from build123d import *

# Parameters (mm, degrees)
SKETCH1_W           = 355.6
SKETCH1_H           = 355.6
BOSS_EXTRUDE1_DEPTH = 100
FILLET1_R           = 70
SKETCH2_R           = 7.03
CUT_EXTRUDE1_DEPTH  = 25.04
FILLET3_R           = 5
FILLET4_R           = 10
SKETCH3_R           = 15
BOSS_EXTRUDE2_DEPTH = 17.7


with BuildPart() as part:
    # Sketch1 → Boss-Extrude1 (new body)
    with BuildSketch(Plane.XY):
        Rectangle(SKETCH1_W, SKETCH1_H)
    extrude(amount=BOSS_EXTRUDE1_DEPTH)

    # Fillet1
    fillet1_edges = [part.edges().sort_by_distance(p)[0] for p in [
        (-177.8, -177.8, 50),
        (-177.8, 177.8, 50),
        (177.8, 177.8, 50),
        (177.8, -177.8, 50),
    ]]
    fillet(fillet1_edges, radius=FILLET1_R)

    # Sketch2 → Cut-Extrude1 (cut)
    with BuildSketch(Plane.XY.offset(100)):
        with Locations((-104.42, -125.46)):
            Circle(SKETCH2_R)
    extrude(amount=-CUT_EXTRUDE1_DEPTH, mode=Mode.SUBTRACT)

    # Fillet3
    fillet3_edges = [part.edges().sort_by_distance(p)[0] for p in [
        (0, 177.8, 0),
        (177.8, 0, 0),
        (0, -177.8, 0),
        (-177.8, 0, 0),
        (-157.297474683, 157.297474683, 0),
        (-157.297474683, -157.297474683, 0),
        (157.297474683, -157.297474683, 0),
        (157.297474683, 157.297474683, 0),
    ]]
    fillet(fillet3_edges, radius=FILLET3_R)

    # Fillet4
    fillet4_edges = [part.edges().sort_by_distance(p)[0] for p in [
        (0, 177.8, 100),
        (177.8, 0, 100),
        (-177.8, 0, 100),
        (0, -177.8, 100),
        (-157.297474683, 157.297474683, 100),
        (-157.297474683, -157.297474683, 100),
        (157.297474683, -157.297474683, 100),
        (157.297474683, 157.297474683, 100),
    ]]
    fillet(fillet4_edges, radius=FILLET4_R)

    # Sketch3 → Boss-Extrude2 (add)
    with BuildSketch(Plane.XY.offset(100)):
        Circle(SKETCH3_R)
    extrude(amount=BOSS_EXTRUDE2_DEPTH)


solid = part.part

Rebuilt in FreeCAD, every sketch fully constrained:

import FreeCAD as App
import Part
import Sketcher
Q = App.Units.Quantity


def edges_at(feature, points):
    """Names of the edges that pass closest to the given points."""
    edges = feature.Shape.Edges
    near = lambda p: min(range(len(edges)), key=lambda i: edges[i].distToShape(Part.Vertex(*p))[0])
    return sorted({f"Edge{near(p) + 1}" for p in points})

doc = App.newDocument("Part")
body = doc.addObject("PartDesign::Body", "Body")

# Sketch on XY plane
sketch1 = body.newObject("Sketcher::SketchObject", "Sketch")
sketch1.AttachmentSupport = (doc.getObject("XY_Plane"), [""])
sketch1.MapMode = "FlatFace"
sketch1.addGeometry([
    Part.LineSegment(App.Vector(-177.8, 177.8, 0), App.Vector(-177.8, -177.8, 0)),
    Part.LineSegment(App.Vector(-177.8, -177.8, 0), App.Vector(177.8, -177.8, 0)),
    Part.LineSegment(App.Vector(177.8, -177.8, 0), App.Vector(177.8, 177.8, 0)),
    Part.LineSegment(App.Vector(177.8, 177.8, 0), App.Vector(-177.8, 177.8, 0)),
], False)
sketch1.addConstraint([
    Sketcher.Constraint("Coincident", 0, 2, 1, 1),
    Sketcher.Constraint("Coincident", 1, 2, 2, 1),
    Sketcher.Constraint("Coincident", 2, 2, 3, 1),
    Sketcher.Constraint("Coincident", 3, 2, 0, 1),
    Sketcher.Constraint("Vertical", 0),
    Sketcher.Constraint("Horizontal", 1),
    Sketcher.Constraint("Vertical", 2),
    Sketcher.Constraint("Horizontal", 3),
    Sketcher.Constraint("Symmetric", 0, 2, 2, 2, -1, 1),
    Sketcher.Constraint("Equal", 3, 0),
    Sketcher.Constraint("DistanceX", 1, 1, 1, 2, Q("355.6 mm")),
])
pad1 = body.newObject("PartDesign::Pad", "Pad")
pad1.Profile = sketch1
pad1.Length = 100
doc.recompute()

fillet = body.newObject("PartDesign::Fillet", "Fillet")
fillet.Base = (pad1, edges_at(pad1, [
    (-177.8, -177.8, 50),
    (-177.8, 177.8, 50),
    (177.8, 177.8, 50),
    (177.8, -177.8, 50),
]))
fillet.Radius = 70

# Sketch on XY plane
sketch2 = body.newObject("Sketcher::SketchObject", "Sketch001")
sketch2.AttachmentSupport = (doc.getObject("XY_Plane"), [""])
sketch2.MapMode = "FlatFace"
sketch2.AttachmentOffset = App.Placement(App.Vector(0, 0, 100), App.Rotation())
sketch2.addGeometry(Part.Circle(App.Vector(-104.42, -125.46, 0), App.Vector(0, 0, 1), 7.03), False)
sketch2.addConstraint([
    Sketcher.Constraint("Diameter", 0, Q("14.06 mm")),
    Sketcher.Constraint("DistanceX", 0, 3, -1, 1, Q("104.42 mm")),
    Sketcher.Constraint("DistanceY", 0, 3, -1, 1, Q("125.46 mm")),
])
pocket1 = body.newObject("PartDesign::Pocket", "Pocket")
pocket1.Profile = sketch2
pocket1.Length = 25.04
doc.recompute()

fillet2 = body.newObject("PartDesign::Fillet", "Fillet001")
fillet2.Base = (pocket1, edges_at(pocket1, [
    (0, 177.8, 0),
    (177.8, 0, 0),
    (0, -177.8, 0),
    (-177.8, 0, 0),
    (-157.297, 157.297, 0),
    (-157.297, -157.297, 0),
    (157.297, -157.297, 0),
    (157.297, 157.297, 0),
]))
fillet2.Radius = 5
doc.recompute()

fillet3 = body.newObject("PartDesign::Fillet", "Fillet002")
fillet3.Base = (fillet2, edges_at(fillet2, [
    (0, 177.8, 100),
    (177.8, 0, 100),
    (-177.8, 0, 100),
    (0, -177.8, 100),
    (-157.297, 157.297, 100),
    (-157.297, -157.297, 100),
    (157.297, -157.297, 100),
    (157.297, 157.297, 100),
]))
fillet3.Radius = 10

# Sketch on XY plane
sketch3 = body.newObject("Sketcher::SketchObject", "Sketch002")
sketch3.AttachmentSupport = (doc.getObject("XY_Plane"), [""])
sketch3.MapMode = "FlatFace"
sketch3.AttachmentOffset = App.Placement(App.Vector(0, 0, 100), App.Rotation())
sketch3.addGeometry(Part.Circle(App.Vector(0, 0, 0), App.Vector(0, 0, 1), 15), False)
sketch3.addConstraint([
    Sketcher.Constraint("Coincident", 0, 3, -1, 1),
    Sketcher.Constraint("Diameter", 0, Q("30 mm")),
])
pad2 = body.newObject("PartDesign::Pad", "Pad001")
pad2.Profile = sketch3
pad2.Length = 17.7

doc.recompute()
